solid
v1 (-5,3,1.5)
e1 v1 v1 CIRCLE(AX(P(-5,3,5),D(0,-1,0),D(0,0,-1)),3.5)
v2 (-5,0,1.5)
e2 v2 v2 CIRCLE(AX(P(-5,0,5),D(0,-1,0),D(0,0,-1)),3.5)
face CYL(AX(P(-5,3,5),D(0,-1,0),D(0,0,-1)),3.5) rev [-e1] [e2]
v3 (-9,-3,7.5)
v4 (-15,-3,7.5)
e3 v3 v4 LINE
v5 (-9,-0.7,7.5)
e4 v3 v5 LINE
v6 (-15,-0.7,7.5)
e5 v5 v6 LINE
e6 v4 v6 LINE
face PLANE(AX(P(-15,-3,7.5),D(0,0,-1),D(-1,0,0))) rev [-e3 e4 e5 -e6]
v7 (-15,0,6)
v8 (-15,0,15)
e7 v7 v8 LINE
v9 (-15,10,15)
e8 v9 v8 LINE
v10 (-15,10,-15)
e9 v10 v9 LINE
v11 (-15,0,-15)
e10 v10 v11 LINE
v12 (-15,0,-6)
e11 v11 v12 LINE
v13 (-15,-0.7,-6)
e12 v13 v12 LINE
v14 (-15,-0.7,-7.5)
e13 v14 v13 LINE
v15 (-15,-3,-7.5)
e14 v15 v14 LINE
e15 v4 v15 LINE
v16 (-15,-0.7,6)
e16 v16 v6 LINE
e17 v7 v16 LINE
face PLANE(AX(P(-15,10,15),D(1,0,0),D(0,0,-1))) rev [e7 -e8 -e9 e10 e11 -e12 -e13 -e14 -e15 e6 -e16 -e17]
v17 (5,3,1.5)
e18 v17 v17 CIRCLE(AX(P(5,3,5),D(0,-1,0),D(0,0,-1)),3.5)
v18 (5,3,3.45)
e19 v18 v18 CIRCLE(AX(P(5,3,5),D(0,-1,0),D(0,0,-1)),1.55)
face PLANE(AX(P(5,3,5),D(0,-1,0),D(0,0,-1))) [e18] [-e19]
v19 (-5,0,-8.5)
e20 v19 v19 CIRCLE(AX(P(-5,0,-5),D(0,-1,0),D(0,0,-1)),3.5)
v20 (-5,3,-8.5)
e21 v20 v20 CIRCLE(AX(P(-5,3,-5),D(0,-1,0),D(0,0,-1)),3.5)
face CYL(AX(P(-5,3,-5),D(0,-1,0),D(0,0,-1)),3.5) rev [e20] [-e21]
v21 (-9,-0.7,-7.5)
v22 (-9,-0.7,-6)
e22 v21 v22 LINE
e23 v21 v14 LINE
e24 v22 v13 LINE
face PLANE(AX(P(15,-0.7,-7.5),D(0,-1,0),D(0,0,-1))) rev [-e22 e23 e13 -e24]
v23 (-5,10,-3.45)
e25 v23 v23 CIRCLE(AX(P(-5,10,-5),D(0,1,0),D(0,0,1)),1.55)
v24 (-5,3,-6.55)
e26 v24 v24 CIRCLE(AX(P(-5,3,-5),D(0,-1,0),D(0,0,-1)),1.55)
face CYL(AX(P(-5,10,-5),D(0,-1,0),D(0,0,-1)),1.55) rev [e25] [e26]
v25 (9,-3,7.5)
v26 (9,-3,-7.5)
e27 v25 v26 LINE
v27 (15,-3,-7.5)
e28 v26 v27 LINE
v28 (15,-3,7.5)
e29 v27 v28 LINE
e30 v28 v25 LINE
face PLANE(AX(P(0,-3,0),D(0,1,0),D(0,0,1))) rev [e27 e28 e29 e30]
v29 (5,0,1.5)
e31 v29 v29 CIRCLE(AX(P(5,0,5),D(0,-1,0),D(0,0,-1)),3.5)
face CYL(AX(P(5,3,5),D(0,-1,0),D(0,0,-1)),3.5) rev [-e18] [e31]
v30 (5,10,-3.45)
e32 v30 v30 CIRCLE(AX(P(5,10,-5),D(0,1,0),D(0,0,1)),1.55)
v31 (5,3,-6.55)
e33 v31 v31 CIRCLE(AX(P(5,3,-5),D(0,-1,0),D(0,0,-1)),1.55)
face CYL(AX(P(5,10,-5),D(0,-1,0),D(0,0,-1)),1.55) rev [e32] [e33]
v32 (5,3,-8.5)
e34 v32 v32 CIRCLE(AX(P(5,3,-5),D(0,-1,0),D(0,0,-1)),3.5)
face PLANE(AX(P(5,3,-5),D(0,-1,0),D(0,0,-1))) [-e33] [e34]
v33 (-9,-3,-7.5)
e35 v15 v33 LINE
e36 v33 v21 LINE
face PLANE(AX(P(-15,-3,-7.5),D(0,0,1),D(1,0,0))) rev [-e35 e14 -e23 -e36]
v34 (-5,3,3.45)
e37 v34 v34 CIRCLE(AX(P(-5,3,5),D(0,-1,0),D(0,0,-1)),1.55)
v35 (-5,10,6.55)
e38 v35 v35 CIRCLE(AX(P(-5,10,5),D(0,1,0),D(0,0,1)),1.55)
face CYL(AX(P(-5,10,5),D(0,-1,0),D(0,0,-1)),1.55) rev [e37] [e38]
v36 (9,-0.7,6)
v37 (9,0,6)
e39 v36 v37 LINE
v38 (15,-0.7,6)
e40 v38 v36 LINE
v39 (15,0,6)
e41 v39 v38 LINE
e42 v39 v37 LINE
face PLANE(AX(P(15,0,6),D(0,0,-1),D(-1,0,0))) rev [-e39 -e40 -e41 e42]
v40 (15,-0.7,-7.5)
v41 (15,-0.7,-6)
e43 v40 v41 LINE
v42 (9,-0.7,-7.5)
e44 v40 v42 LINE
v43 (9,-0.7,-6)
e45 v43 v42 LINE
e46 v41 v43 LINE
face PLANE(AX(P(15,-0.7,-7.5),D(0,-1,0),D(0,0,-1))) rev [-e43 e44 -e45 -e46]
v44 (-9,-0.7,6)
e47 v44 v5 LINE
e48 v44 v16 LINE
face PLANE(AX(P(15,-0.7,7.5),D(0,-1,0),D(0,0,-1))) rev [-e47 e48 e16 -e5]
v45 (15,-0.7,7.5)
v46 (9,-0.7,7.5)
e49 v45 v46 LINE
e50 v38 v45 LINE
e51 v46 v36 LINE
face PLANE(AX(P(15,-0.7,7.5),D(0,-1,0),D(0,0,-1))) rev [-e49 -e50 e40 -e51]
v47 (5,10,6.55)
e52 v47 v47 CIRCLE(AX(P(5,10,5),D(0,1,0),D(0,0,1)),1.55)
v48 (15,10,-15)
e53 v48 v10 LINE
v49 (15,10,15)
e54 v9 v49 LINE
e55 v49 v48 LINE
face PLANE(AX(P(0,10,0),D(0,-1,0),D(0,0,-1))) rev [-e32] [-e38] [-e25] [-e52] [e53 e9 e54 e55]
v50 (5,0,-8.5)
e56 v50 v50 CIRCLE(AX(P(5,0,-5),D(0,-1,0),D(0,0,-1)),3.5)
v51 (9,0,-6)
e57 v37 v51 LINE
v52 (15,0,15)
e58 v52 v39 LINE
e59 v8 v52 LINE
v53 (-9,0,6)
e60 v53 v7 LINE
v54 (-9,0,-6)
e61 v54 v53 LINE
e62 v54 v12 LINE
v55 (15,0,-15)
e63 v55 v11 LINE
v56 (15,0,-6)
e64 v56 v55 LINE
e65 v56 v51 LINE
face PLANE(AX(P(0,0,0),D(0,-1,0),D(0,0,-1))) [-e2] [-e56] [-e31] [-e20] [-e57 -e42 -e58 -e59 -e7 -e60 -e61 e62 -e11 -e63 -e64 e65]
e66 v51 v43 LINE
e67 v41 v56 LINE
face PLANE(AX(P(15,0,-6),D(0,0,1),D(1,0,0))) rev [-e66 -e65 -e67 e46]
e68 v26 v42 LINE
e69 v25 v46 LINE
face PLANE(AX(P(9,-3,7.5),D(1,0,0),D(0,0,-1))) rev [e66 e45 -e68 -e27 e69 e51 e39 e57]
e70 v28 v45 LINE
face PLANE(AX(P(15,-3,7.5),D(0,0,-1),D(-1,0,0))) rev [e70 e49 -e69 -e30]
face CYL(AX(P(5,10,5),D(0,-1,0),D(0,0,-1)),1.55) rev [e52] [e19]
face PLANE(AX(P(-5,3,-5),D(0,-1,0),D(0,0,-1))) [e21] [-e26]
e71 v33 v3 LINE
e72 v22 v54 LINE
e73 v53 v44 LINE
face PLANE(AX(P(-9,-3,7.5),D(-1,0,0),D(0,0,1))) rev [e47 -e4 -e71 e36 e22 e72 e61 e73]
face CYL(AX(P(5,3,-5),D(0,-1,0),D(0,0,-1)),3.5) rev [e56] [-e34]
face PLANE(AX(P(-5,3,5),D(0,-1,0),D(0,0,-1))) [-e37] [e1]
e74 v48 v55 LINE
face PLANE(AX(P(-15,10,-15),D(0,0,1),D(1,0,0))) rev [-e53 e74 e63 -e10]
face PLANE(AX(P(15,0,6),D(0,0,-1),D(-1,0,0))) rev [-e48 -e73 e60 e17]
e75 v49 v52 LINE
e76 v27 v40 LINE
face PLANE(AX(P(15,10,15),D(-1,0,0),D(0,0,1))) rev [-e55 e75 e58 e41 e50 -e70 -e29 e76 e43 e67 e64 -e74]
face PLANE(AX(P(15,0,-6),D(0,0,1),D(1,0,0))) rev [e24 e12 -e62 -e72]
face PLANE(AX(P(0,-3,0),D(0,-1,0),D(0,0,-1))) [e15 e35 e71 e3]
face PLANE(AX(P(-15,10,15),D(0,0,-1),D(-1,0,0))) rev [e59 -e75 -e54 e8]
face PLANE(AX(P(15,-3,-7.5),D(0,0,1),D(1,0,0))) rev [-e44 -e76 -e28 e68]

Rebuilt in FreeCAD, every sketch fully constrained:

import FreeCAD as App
import Part
import Sketcher


def add_polygon(sketch, points):
    """Adds a closed chain of lines whose ends are joined by coincident constraints."""
    first, n = sketch.GeometryCount, len(points)
    for a, b in zip(points, points[1:] + points[:1]):
        sketch.addGeometry(Part.LineSegment(App.Vector(*a, 0), App.Vector(*b, 0)), False)
    for i in range(n):
        sketch.addConstraint(Sketcher.Constraint("Coincident", first + i, 2, first + (i + 1) % n, 1))

doc = App.newDocument("Part")
body = doc.addObject("PartDesign::Body", "Body")

sketch1 = doc.addObject("Sketcher::SketchObject", "Sketch")
body.addObject(sketch1)
sketch1.AttachmentSupport = (doc.XZ_Plane, [""])
sketch1.MapMode = "FlatFace"
add_polygon(sketch1, [(-15, -15), (-15, 15), (15, 15), (15, -15)])
sketch1.addGeometry(Part.Circle(App.Vector(-5, 5, 0), App.Vector(0, 0, 1), 1.55), False)
sketch1.addGeometry(Part.Circle(App.Vector(5, 5, 0), App.Vector(0, 0, 1), 1.55), False)
sketch1.addGeometry(Part.Circle(App.Vector(-5, -5, 0), App.Vector(0, 0, 1), 1.55), False)
sketch1.addGeometry(Part.Circle(App.Vector(5, -5, 0), App.Vector(0, 0, 1), 1.55), False)
sketch1.addConstraint(Sketcher.Constraint("Vertical", 0))
sketch1.addConstraint(Sketcher.Constraint("Horizontal", 1))
sketch1.addConstraint(Sketcher.Constraint("Vertical", 2))
sketch1.addConstraint(Sketcher.Constraint("Horizontal", 3))
sketch1.addConstraint(Sketcher.Constraint("Equal", 4, 5))
sketch1.addConstraint(Sketcher.Constraint("Equal", 5, 6))
sketch1.addConstraint(Sketcher.Constraint("Equal", 6, 7))
sketch1.addConstraint(Sketcher.Constraint("Symmetric", 5, 3, 6, 3, -1, 1))
sketch1.addConstraint(Sketcher.Constraint("Symmetric", 4, 3, 7, 3, -1, 1))
sketch1.addConstraint(Sketcher.Constraint("Symmetric", 0, 2, 2, 2, -1, 1))
sketch1.addConstraint(Sketcher.Constraint("Symmetric", 4, 3, 5, 3, -2))
sketch1.addConstraint(Sketcher.Constraint("Equal", 3, 0))
sketch1.addConstraint(Sketcher.Constraint("Diameter", 4, 3.1))
sketch1.addConstraint(Sketcher.Constraint("DistanceX", 1, 1, 1, 2, 30.0))
sketch1.addConstraint(Sketcher.Constraint("DistanceX", 4, 3, -1, 1, 5.0))
sketch1.addConstraint(Sketcher.Constraint("DistanceY", -1, 1, 4, 3, 5.0))
pad1 = doc.addObject("PartDesign::Pad", "Pad")
body.addObject(pad1)
pad1.Profile = sketch1
pad1.Length = 10
pad1.Reversed = True

sketch2 = doc.addObject("Sketcher::SketchObject", "Sketch001")
body.addObject(sketch2)
sketch2.AttachmentSupport = (doc.XZ_Plane, [""])
sketch2.MapMode = "FlatFace"
sketch2.addGeometry(Part.Circle(App.Vector(-5, 5, 0), App.Vector(0, 0, 1), 3.5), False)
sketch2.addGeometry(Part.Circle(App.Vector(5, 5, 0), App.Vector(0, 0, 1), 3.5), False)
sketch2.addGeometry(Part.Circle(App.Vector(5, -5, 0), App.Vector(0, 0, 1), 3.5), False)
sketch2.addGeometry(Part.Circle(App.Vector(-5, -5, 0), App.Vector(0, 0, 1), 3.5), False)
sketch2.addConstraint(Sketcher.Constraint("Equal", 0, 1))
sketch2.addConstraint(Sketcher.Constraint("Equal", 1, 2))
sketch2.addConstraint(Sketcher.Constraint("Equal", 2, 3))
sketch2.addConstraint(Sketcher.Constraint("Symmetric", 0, 3, 2, 3, -1, 1))
sketch2.addConstraint(Sketcher.Constraint("Symmetric", 1, 3, 3, 3, -1, 1))
sketch2.addConstraint(Sketcher.Constraint("Symmetric", 0, 3, 1, 3, -2))
sketch2.addConstraint(Sketcher.Constraint("Diameter", 0, 7.0))
sketch2.addConstraint(Sketcher.Constraint("DistanceX", 0, 3, -1, 1, 5.0))
sketch2.addConstraint(Sketcher.Constraint("DistanceY", -1, 1, 0, 3, 5.0))
pocket1 = doc.addObject("PartDesign::Pocket", "Pocket")
body.addObject(pocket1)
pocket1.Profile = sketch2
pocket1.Length = 3

sketch3 = doc.addObject("Sketcher::SketchObject", "Sketch002")
body.addObject(sketch3)
sketch3.AttachmentSupport = (doc.XZ_Plane, [""])
sketch3.MapMode = "FlatFace"
add_polygon(sketch3, [(-15, 7.5), (-15, -7.5), (-9, -7.5), (-9, 7.5)])
add_polygon(sketch3, [(9, 7.5), (9, -7.5), (15, -7.5), (15, 7.5)])
sketch3.addConstraint(Sketcher.Constraint("Vertical", 0))
sketch3.addConstraint(Sketcher.Constraint("Horizontal", 1))
sketch3.addConstraint(Sketcher.Constraint("Vertical", 2))
sketch3.addConstraint(Sketcher.Constraint("Horizontal", 3))
sketch3.addConstraint(Sketcher.Constraint("Vertical", 4))
sketch3.addConstraint(Sketcher.Constraint("Horizontal", 5))
sketch3.addConstraint(Sketcher.Constraint("Vertical", 6))
sketch3.addConstraint(Sketcher.Constraint("Horizontal", 7))
sketch3.addConstraint(Sketcher.Constraint("Symmetric", 2, 2, 4, 2, -1, 1))
sketch3.addConstraint(Sketcher.Constraint("Symmetric", 0, 2, 6, 2, -1, 1))
sketch3.addConstraint(Sketcher.Constraint("Horizontal", 1, 2, 4, 2))
sketch3.addConstraint(Sketcher.Constraint("DistanceX", 1, 1, 1, 2, 6.0))
sketch3.addConstraint(Sketcher.Constraint("DistanceY", 0, 2, 0, 1, 15.0))
sketch3.addConstraint(Sketcher.Constraint("DistanceX", 0, 2, -1, 1, 15.0))
pad2 = doc.addObject("PartDesign::Pad", "Pad001")
body.addObject(pad2)
pad2.Profile = sketch3
pad2.Length = 3

sketch4 = doc.addObject("Sketcher::SketchObject", "Sketch003")
body.addObject(sketch4)
sketch4.AttachmentSupport = (doc.YZ_Plane, [""])
sketch4.MapMode = "FlatFace"
sketch4.AttachmentOffset = App.Placement(App.Vector(0, 0, -15), App.Rotation())
add_polygon(sketch4, [(0, -7.5), (-0.7, -7.5), (-0.7, -6), (0, -6)])
add_polygon(sketch4, [(0, 6), (-0.7, 6), (-0.7, 7.5), (0, 7.5)])
sketch4.addConstraint(Sketcher.Constraint("Horizontal", 0))
sketch4.addConstraint(Sketcher.Constraint("Vertical", 1))
sketch4.addConstraint(Sketcher.Constraint("Horizontal", 2))
sketch4.addConstraint(Sketcher.Constraint("Vertical", 3))
sketch4.addConstraint(Sketcher.Constraint("Horizontal", 4))
sketch4.addConstraint(Sketcher.Constraint("Vertical", 5))
sketch4.addConstraint(Sketcher.Constraint("Horizontal", 6))
sketch4.addConstraint(Sketcher.Constraint("Vertical", 7))
sketch4.addConstraint(Sketcher.Constraint("Symmetric", 3, 2, 6, 2, -1, 1))
sketch4.addConstraint(Sketcher.Constraint("Symmetric", 1, 2, 4, 2, -1))
sketch4.addConstraint(Sketcher.Constraint("PointOnObject", 2, 2, -2))
sketch4.addConstraint(Sketcher.Constraint("DistanceX", 0, 2, 0, 1, 0.7))
sketch4.addConstraint(Sketcher.Constraint("DistanceY", 1, 1, 1, 2, 1.5))
sketch4.addConstraint(Sketcher.Constraint("DistanceY", 1, 2, -1, 1, 6.0))
pocket2 = doc.addObject("PartDesign::Pocket", "Pocket001")
body.addObject(pocket2)
pocket2.Profile = sketch4
pocket2.Type = "ThroughAll"
pocket2.Reversed = True

doc.recompute()
